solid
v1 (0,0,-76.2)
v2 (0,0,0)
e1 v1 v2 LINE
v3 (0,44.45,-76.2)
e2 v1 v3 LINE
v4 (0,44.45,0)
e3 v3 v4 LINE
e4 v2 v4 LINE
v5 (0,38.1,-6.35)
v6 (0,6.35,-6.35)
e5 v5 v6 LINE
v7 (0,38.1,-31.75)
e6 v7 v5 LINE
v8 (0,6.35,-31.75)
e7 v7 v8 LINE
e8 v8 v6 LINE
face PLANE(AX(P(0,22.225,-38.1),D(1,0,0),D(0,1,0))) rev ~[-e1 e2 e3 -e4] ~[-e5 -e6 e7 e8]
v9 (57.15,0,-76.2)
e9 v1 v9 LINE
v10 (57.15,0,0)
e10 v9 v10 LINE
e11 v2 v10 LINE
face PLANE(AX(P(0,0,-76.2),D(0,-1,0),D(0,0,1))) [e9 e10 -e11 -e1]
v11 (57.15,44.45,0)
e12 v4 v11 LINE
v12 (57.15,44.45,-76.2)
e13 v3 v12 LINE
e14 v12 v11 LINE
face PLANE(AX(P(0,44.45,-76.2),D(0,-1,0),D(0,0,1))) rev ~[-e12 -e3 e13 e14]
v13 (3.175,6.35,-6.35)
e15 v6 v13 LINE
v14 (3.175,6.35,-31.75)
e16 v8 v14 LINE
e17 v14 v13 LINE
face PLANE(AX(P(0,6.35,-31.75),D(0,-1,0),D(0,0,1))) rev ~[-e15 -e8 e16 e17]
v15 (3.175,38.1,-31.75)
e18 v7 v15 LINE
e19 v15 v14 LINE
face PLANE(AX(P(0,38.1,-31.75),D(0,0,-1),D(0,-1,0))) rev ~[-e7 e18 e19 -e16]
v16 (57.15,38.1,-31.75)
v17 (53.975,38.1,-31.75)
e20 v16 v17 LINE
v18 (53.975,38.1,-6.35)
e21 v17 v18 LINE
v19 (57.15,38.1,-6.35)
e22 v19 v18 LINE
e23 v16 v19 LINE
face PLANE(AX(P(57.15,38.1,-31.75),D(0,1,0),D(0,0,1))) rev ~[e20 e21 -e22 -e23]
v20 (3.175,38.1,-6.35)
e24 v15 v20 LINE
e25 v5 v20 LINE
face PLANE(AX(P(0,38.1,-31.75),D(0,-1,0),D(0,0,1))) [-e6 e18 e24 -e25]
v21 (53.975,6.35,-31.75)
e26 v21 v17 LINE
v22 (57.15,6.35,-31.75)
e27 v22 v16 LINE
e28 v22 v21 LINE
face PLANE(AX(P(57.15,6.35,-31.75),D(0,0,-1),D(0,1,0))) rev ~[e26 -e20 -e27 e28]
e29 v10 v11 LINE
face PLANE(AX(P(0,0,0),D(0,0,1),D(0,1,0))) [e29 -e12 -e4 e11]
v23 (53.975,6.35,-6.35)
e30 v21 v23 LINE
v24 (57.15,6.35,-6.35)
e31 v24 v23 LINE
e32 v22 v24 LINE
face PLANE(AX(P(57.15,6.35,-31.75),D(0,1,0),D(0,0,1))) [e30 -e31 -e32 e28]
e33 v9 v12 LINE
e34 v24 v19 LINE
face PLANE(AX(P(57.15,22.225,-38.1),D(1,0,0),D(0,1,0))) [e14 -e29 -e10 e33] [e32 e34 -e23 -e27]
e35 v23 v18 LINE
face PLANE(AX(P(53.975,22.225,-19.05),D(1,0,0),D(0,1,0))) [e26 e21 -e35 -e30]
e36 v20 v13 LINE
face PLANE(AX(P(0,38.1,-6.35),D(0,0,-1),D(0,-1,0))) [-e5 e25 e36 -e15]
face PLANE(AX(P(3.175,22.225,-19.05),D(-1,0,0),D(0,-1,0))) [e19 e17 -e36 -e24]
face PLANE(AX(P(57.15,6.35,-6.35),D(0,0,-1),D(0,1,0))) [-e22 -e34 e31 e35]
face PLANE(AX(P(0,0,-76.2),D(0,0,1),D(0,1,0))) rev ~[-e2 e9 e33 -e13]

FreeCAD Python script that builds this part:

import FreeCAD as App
import Part
import Sketcher
from FreeCAD import Vector
Q = App.Units.Quantity

doc = App.newDocument("Part")
params = doc.addObject("Spreadsheet::Sheet", "Params")
for row, (alias, value) in enumerate([
    ("sketch1_height", "3 in"),
    ("sketch1_width", "1.75 in"),
    ("pad1_length", "2.25 in"),
    ("sketch2_height", "1 in"),
    ("sketch2_width", "1.25 in"),
    ("pocket1_length", "0.125 in"),
    ("sketch3_height", "1 in"),
    ("sketch3_width", "1.25 in"),
    ("pocket2_length", "0.125 in"),
], start=1):
    params.set(f"A{row}", alias)
    params.set(f"B{row}", "=" + value)
    params.setAlias(f"B{row}", alias)

body = doc.addObject("PartDesign::Body", "Body")

sketch1 = body.newObject("Sketcher::SketchObject", "Sketch")
sketch1.AttachmentSupport = (doc.getObject("YZ_Plane"), [""])
sketch1.MapMode = "FlatFace"
sketch1.addGeometry([
    Part.LineSegment(Vector(0, 0, 0), Vector(0, -76.2, 0)),
    Part.LineSegment(Vector(0, -76.2, 0), Vector(44.45, -76.2, 0)),
    Part.LineSegment(Vector(44.45, -76.2, 0), Vector(44.45, 0, 0)),
    Part.LineSegment(Vector(44.45, 0, 0), Vector(0, 0, 0)),
], False)
sketch1.addConstraint([
    Sketcher.Constraint("Coincident", 0, 2, 1, 1),
    Sketcher.Constraint("Coincident", 1, 2, 2, 1),
    Sketcher.Constraint("Coincident", 2, 2, 3, 1),
    Sketcher.Constraint("Coincident", 3, 2, 0, 1),
    Sketcher.Constraint("Vertical", 0),
    Sketcher.Constraint("Horizontal", 1),
    Sketcher.Constraint("Vertical", 2),
    Sketcher.Constraint("Horizontal", 3),
    Sketcher.Constraint("Coincident", 3, 2, -1, 1),
    Sketcher.Constraint("DistanceY", 0, 2, 0, 1, Q("3 in")),
    Sketcher.Constraint("DistanceX", 1, 1, 1, 2, Q("1.75 in")),
])
sketch1.setExpression("Constraints[9]", "Params.sketch1_height")
sketch1.setExpression("Constraints[10]", "Params.sketch1_width")
pad1 = body.newObject("PartDesign::Pad", "Pad")
pad1.Profile = sketch1
pad1.setExpression("Length", "Params.pad1_length")

sketch2 = body.newObject("Sketcher::SketchObject", "Sketch001")
sketch2.AttachmentSupport = (doc.getObject("YZ_Plane"), [""])
sketch2.MapMode = "FlatFace"
sketch2.AttachmentOffset = App.Placement(Vector(0, 0, 2.25 * 25.4), App.Rotation())
sketch2.addGeometry([
    Part.LineSegment(Vector(6.35, -6.35, 0), Vector(6.35, -31.75, 0)),
    Part.LineSegment(Vector(6.35, -31.75, 0), Vector(38.1, -31.75, 0)),
    Part.LineSegment(Vector(38.1, -31.75, 0), Vector(38.1, -6.35, 0)),
    Part.LineSegment(Vector(38.1, -6.35, 0), Vector(6.35, -6.35, 0)),
], False)
sketch2.addConstraint([
    Sketcher.Constraint("Coincident", 0, 2, 1, 1),
    Sketcher.Constraint("Coincident", 1, 2, 2, 1),
    Sketcher.Constraint("Coincident", 2, 2, 3, 1),
    Sketcher.Constraint("Coincident", 3, 2, 0, 1),
    Sketcher.Constraint("Vertical", 0),
    Sketcher.Constraint("Horizontal", 1),
    Sketcher.Constraint("Vertical", 2),
    Sketcher.Constraint("Horizontal", 3),
    Sketcher.Constraint("DistanceY", 0, 2, 0, 1, Q("1 in")),
    Sketcher.Constraint("DistanceX", 1, 1, 1, 2, Q("1.25 in")),
    Sketcher.Constraint("DistanceX", -1, 1, 1, 2, Q("1.5 in")),
    Sketcher.Constraint("DistanceY", 0, 2, -1, 1, Q("1.25 in")),
])
sketch2.setExpression("Constraints[8]", "Params.sketch2_height")
sketch2.setExpression("Constraints[9]", "Params.sketch2_width")
pocket1 = body.newObject("PartDesign::Pocket", "Pocket")
pocket1.Profile = sketch2
pocket1.setExpression("Length", "Params.pocket1_length")

sketch3 = body.newObject("Sketcher::SketchObject", "Sketch002")
sketch3.AttachmentSupport = (doc.getObject("YZ_Plane"), [""])
sketch3.MapMode = "FlatFace"
sketch3.addGeometry([
    Part.LineSegment(Vector(38.1, -6.35, 0), Vector(38.1, -31.75, 0)),
    Part.LineSegment(Vector(38.1, -31.75, 0), Vector(6.35, -31.75, 0)),
    Part.LineSegment(Vector(6.35, -31.75, 0), Vector(6.35, -6.35, 0)),
    Part.LineSegment(Vector(6.35, -6.35, 0), Vector(38.1, -6.35, 0)),
], False)
sketch3.addConstraint([
    Sketcher.Constraint("Coincident", 0, 2, 1, 1),
    Sketcher.Constraint("Coincident", 1, 2, 2, 1),
    Sketcher.Constraint("Coincident", 2, 2, 3, 1),
    Sketcher.Constraint("Coincident", 3, 2, 0, 1),
    Sketcher.Constraint("Vertical", 0),
    Sketcher.Constraint("Horizontal", 1),
    Sketcher.Constraint("Vertical", 2),
    Sketcher.Constraint("Horizontal", 3),
    Sketcher.Constraint("DistanceY", 0, 2, 0, 1, Q("1 in")),
    Sketcher.Constraint("DistanceX", 1, 2, 1, 1, Q("1.25 in")),
    Sketcher.Constraint("DistanceX", -1, 1, 0, 2, Q("1.5 in")),
    Sketcher.Constraint("DistanceY", 0, 2, -1, 1, Q("1.25 in")),
])
sketch3.setExpression("Constraints[8]", "Params.sketch3_height")
sketch3.setExpression("Constraints[9]", "Params.sketch3_width")
pocket2 = body.newObject("PartDesign::Pocket", "Pocket001")
pocket2.Profile = sketch3
pocket2.setExpression("Length", "Params.pocket2_length")
pocket2.Reversed = True

doc.recompute()
